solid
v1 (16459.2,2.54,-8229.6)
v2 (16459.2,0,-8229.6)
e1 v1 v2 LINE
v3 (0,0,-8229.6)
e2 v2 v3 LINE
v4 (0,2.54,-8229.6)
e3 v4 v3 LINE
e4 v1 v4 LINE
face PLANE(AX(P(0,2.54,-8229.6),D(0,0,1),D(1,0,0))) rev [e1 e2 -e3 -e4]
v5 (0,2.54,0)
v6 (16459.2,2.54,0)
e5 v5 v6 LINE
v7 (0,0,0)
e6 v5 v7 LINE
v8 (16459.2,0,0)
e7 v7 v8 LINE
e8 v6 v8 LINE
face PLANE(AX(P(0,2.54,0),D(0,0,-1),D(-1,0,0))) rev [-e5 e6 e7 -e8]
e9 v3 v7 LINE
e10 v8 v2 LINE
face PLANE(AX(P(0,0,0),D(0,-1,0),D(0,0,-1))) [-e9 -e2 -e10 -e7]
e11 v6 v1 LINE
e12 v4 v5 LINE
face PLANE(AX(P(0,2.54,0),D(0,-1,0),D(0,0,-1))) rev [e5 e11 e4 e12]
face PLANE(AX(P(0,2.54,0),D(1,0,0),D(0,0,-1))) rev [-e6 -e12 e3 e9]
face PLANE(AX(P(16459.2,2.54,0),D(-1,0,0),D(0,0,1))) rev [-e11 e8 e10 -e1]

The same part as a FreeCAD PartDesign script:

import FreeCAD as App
import Part
import Sketcher
Q = App.Units.Quantity

doc = App.newDocument("Part")
params = doc.addObject("Spreadsheet::Sheet", "Params")
for row, (alias, value) in enumerate([
    ("sketch1_width", "648 in"),
    ("sketch1_height", "324 in"),
    ("pad1_length", "0.1 in"),
], start=1):
    params.set(f"A{row}", alias)
    params.set(f"B{row}", "=" + value)
    params.setAlias(f"B{row}", alias)

body = doc.addObject("PartDesign::Body", "Body")

sketch1 = doc.addObject("Sketcher::SketchObject", "Sketch")
body.addObject(sketch1)
sketch1.AttachmentSupport = (doc.XZ_Plane, [""])
sketch1.MapMode = "FlatFace"
sketch1.addGeometry(Part.LineSegment(App.Vector(0, -8229.6, 0), App.Vector(0, 0, 0)), False)
sketch1.addGeometry(Part.LineSegment(App.Vector(0, 0, 0), App.Vector(16459.2, 0, 0)), False)
sketch1.addGeometry(Part.LineSegment(App.Vector(16459.2, 0, 0), App.Vector(16459.2, -8229.6, 0)), False)
sketch1.addGeometry(Part.LineSegment(App.Vector(16459.2, -8229.6, 0), App.Vector(0, -8229.6, 0)), False)
sketch1.addConstraint(Sketcher.Constraint("Coincident", 0, 2, 1, 1))
sketch1.addConstraint(Sketcher.Constraint("Coincident", 1, 2, 2, 1))
sketch1.addConstraint(Sketcher.Constraint("Coincident", 2, 2, 3, 1))
sketch1.addConstraint(Sketcher.Constraint("Coincident", 3, 2, 0, 1))
sketch1.addConstraint(Sketcher.Constraint("Vertical", 0))
sketch1.addConstraint(Sketcher.Constraint("Horizontal", 1))
sketch1.addConstraint(Sketcher.Constraint("Vertical", 2))
sketch1.addConstraint(Sketcher.Constraint("Horizontal", 3))
sketch1.addConstraint(Sketcher.Constraint("Coincident", 0, 2, -1, 1))
sketch1.addConstraint(Sketcher.Constraint("DistanceX", 1, 1, 1, 2, Q("648 in")))
sketch1.addConstraint(Sketcher.Constraint("DistanceY", 0, 1, 0, 2, Q("324 in")))
sketch1.setExpression("Constraints[9]", "Params.sketch1_width")
sketch1.setExpression("Constraints[10]", "Params.sketch1_height")
pad1 = doc.addObject("PartDesign::Pad", "Pad")
body.addObject(pad1)
pad1.Profile = sketch1
pad1.setExpression("Length", "Params.pad1_length")
pad1.Reversed = True

doc.recompute()
